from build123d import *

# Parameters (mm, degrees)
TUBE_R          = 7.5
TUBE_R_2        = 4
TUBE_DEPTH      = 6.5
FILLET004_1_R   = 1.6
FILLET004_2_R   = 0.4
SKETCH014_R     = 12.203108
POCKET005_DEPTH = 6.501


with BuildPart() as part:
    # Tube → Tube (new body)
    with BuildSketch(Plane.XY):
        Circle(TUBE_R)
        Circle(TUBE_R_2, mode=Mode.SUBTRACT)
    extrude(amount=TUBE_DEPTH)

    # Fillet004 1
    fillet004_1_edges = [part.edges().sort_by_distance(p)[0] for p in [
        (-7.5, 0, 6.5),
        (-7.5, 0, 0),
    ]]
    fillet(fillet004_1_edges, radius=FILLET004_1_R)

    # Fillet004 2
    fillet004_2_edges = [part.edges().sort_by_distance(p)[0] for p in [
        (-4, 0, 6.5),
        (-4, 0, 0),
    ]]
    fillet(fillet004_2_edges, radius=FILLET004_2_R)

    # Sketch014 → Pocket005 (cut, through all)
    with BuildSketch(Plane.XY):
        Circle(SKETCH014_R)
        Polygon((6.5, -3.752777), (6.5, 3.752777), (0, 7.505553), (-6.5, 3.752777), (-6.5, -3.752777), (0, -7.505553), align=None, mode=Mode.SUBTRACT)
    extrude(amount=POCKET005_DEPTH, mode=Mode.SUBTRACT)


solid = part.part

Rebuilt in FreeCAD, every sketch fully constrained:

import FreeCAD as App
import Part
import Sketcher
from FreeCAD import Vector
Q = App.Units.Quantity


def edges_at(feature, points):
    """Names of the edges that pass closest to the given points."""
    edges = feature.Shape.Edges
    near = lambda p: min(range(len(edges)), key=lambda i: edges[i].distToShape(Part.Vertex(*p))[0])
    return sorted({f"Edge{near(p) + 1}" for p in points})

doc = App.newDocument("Part")
params = doc.addObject("Spreadsheet::Sheet", "Params")
for row, (alias, value) in enumerate([
    ("sketch1_diameter", "15 mm"),
    ("sketch1_diameter2", "8 mm"),
    ("pad1_length", "6.5 mm"),
    ("fillet_radius", "1.6 mm"),
    ("fillet2_radius", "0.4 mm"),
], start=1):
    params.set(f"A{row}", alias)
    params.set(f"B{row}", "=" + value)
    params.setAlias(f"B{row}", alias)

body = doc.addObject("PartDesign::Body", "Body")

sketch1 = body.newObject("Sketcher::SketchObject", "Sketch")
sketch1.AttachmentSupport = (doc.getObject("XY_Plane"), [""])
sketch1.MapMode = "FlatFace"
sketch1.addGeometry([
    Part.Circle(Vector(0, 0, 0), Vector(0, 0, 1), 7.5),
    Part.Circle(Vector(0, 0, 0), Vector(0, 0, 1), 4),
], False)
sketch1.addConstraint([
    Sketcher.Constraint("Coincident", 0, 3, -1, 1),
    Sketcher.Constraint("Coincident", 1, 3, -1, 1),
    Sketcher.Constraint("Diameter", 0, Q("15 mm")),
    Sketcher.Constraint("Diameter", 1, Q("8 mm")),
])
sketch1.setExpression("Constraints[2]", "Params.sketch1_diameter")
sketch1.setExpression("Constraints[3]", "Params.sketch1_diameter2")
pad1 = body.newObject("PartDesign::Pad", "Pad")
pad1.Profile = sketch1
pad1.setExpression("Length", "Params.pad1_length")
doc.recompute()

fillet = body.newObject("PartDesign::Fillet", "Fillet")
fillet.Base = (pad1, edges_at(pad1, [(-7.5, 0, 6.5), (-7.5, 0, 0)]))
fillet.setExpression("Radius", "Params.fillet_radius")
doc.recompute()

fillet2 = body.newObject("PartDesign::Fillet", "Fillet001")
fillet2.Base = (fillet, edges_at(fillet, [(-4, 0, 6.5), (-4, 0, 0)]))
fillet2.setExpression("Radius", "Params.fillet2_radius")

sketch2 = body.newObject("Sketcher::SketchObject", "Sketch001")
sketch2.AttachmentSupport = (doc.getObject("XY_Plane"), [""])
sketch2.MapMode = "FlatFace"
sketch2.addGeometry([
    Part.Circle(Vector(0, 0, 0), Vector(0, 0, 1), 12),
    Part.LineSegment(Vector(6, 4, 0), Vector(6, -4, 0)),
    Part.LineSegment(Vector(6, -4, 0), Vector(0, -8, 0)),
    Part.LineSegment(Vector(0, -8, 0), Vector(-6, -4, 0)),
    Part.LineSegment(Vector(-6, -4, 0), Vector(-6, 4, 0)),
    Part.LineSegment(Vector(-6, 4, 0), Vector(0, 8, 0)),
    Part.LineSegment(Vector(0, 8, 0), Vector(6, 4, 0)),
], False)
sketch2.addConstraint([
    Sketcher.Constraint("Coincident", 1, 2, 2, 1),
    Sketcher.Constraint("Coincident", 2, 2, 3, 1),
    Sketcher.Constraint("Coincident", 3, 2, 4, 1),
    Sketcher.Constraint("Coincident", 4, 2, 5, 1),
    Sketcher.Constraint("Coincident", 5, 2, 6, 1),
    Sketcher.Constraint("Coincident", 6, 2, 1, 1),
    Sketcher.Constraint("Vertical", 1),
    Sketcher.Constraint("Vertical", 4),
    Sketcher.Constraint("Coincident", 0, 3, -1, 1),
    Sketcher.Constraint("Symmetric", 1, 2, 4, 2, -1, 1),
    Sketcher.Constraint("Symmetric", 2, 2, 5, 2, -1, 1),
    Sketcher.Constraint("PointOnObject", 2, 2, -2),
    Sketcher.Constraint("Parallel", 3, 6),
    Sketcher.Constraint("Horizontal", 1, 2, 3, 2),
    Sketcher.Constraint("Angle", 2, Q("-150.000005 deg")),
    Sketcher.Constraint("DistanceX", 3, 2, 1, 2, Q("13 mm")),
    Sketcher.Constraint("Diameter", 0, Q("24.406216 mm")),
    Sketcher.Constraint("DistanceY", 1, 2, 1, 1, Q("7.505554 mm")),
])
pocket1 = body.newObject("PartDesign::Pocket", "Pocket")
pocket1.Profile = sketch2
pocket1.Type = "ThroughAll"
pocket1.Reversed = True

doc.recompute()
